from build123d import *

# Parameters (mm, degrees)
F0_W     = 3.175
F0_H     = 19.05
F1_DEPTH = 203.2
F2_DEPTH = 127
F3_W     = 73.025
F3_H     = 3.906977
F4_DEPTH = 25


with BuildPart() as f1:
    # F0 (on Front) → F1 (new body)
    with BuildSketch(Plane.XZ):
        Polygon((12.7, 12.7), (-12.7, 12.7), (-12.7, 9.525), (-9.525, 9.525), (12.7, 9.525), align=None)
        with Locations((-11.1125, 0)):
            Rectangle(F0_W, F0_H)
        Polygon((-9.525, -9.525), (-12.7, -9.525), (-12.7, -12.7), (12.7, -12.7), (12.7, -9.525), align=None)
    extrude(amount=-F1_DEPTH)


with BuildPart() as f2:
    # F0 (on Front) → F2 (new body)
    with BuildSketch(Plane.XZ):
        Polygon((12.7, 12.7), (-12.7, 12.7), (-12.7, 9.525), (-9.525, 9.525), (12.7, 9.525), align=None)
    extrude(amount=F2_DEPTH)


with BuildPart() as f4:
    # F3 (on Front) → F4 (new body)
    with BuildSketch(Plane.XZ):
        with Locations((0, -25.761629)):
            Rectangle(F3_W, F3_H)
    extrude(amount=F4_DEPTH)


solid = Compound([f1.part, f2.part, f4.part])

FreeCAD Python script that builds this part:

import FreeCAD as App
import Part
import Sketcher

V = App.Vector
Q = App.Units.Quantity


def add_polygon(sketch, points):
    """Adds a closed chain of lines whose ends are joined by coincident constraints."""
    first, n = sketch.GeometryCount, len(points)
    for a, b in zip(points, points[1:] + points[:1]):
        sketch.addGeometry(Part.LineSegment(App.Vector(*a, 0), App.Vector(*b, 0)), False)
    for i in range(n):
        sketch.addConstraint(Sketcher.Constraint("Coincident", first + i, 2, first + (i + 1) % n, 1))

doc = App.newDocument("Part")
body = doc.addObject("PartDesign::Body", "Body")

# Sketch on XZ plane
sketch1 = body.newObject("Sketcher::SketchObject", "Sketch")
sketch1.AttachmentSupport = (doc.getObject("XZ_Plane"), [""])
sketch1.MapMode = "FlatFace"
add_polygon(sketch1, [(12.7, 12.7), (-12.7, 12.7), (-12.7, -12.7), (12.7, -12.7), (12.7, -9.5), (-9.5, -9.5), (-9.5, 9.5), (12.7, 9.5)])  # lines 0-7
sketch1.addConstraint(Sketcher.Constraint("Horizontal", 0))
sketch1.addConstraint(Sketcher.Constraint("Vertical", 1))
sketch1.addConstraint(Sketcher.Constraint("Horizontal", 2))
sketch1.addConstraint(Sketcher.Constraint("Vertical", 3))
sketch1.addConstraint(Sketcher.Constraint("Horizontal", 4))
sketch1.addConstraint(Sketcher.Constraint("Vertical", 5))
sketch1.addConstraint(Sketcher.Constraint("Horizontal", 6))
sketch1.addConstraint(Sketcher.Constraint("Vertical", 7))
sketch1.addConstraint(Sketcher.Constraint("Symmetric", 0, 2, 2, 2, -1, 1))
sketch1.addConstraint(Sketcher.Constraint("Symmetric", 3, 2, 6, 2, -1))
sketch1.addConstraint(Sketcher.Constraint("Equal", 2, 1))
sketch1.addConstraint(Sketcher.Constraint("DistanceX", 0, 2, 0, 1, Q("1 in")))
sketch1.addConstraint(Sketcher.Constraint("DistanceY", 5, 1, 5, 2, Q("0.75 in")))
sketch1.addConstraint(Sketcher.Constraint("DistanceX", 4, 2, 4, 1, Q("0.875 in")))
pad1 = body.newObject("PartDesign::Pad", "Pad")
pad1.Profile = sketch1
pad1.Length = Q("8 in")
pad1.Reversed = True
body2 = doc.addObject("PartDesign::Body", "Body001")

# Sketch on XZ plane
sketch2 = body2.newObject("Sketcher::SketchObject", "Sketch001")
sketch2.AttachmentSupport = (doc.getObject("XZ_Plane001"), [""])
sketch2.MapMode = "FlatFace"
add_polygon(sketch2, [(12.7, 12.7), (-12.7, 12.7), (-12.7, 9.5), (12.7, 9.5)])  # lines 0-3
sketch2.addConstraint(Sketcher.Constraint("Horizontal", 0))
sketch2.addConstraint(Sketcher.Constraint("Vertical", 1))
sketch2.addConstraint(Sketcher.Constraint("Horizontal", 2))
sketch2.addConstraint(Sketcher.Constraint("Vertical", 3))
sketch2.addConstraint(Sketcher.Constraint("DistanceX", 0, 2, 0, 1, Q("1 in")))
sketch2.addConstraint(Sketcher.Constraint("DistanceX", 0, 2, -1, 1, Q("0.5 in")))
sketch2.addConstraint(Sketcher.Constraint("DistanceY", -1, 1, 0, 2, Q("0.5 in")))
sketch2.addConstraint(Sketcher.Constraint("DistanceY", 1, 2, 1, 1, Q("0.125 in")))
pad2 = body2.newObject("PartDesign::Pad", "Pad001")
pad2.Profile = sketch2
pad2.Length = Q("5 in")
body3 = doc.addObject("PartDesign::Body", "Body002")

# Sketch on XZ plane
sketch3 = body3.newObject("Sketcher::SketchObject", "Sketch002")
sketch3.AttachmentSupport = (doc.getObject("XZ_Plane002"), [""])
sketch3.MapMode = "FlatFace"
add_polygon(sketch3, [(-36.5, -23.8), (-36.5, -27.7), (36.5, -27.7), (36.5, -23.8)])  # lines 0-3
sketch3.addConstraint(Sketcher.Constraint("Vertical", 0))
sketch3.addConstraint(Sketcher.Constraint("Horizontal", 1))
sketch3.addConstraint(Sketcher.Constraint("Vertical", 2))
sketch3.addConstraint(Sketcher.Constraint("Horizontal", 3))
sketch3.addConstraint(Sketcher.Constraint("DistanceX", 1, 1, 1, 2, Q("2.875 in")))
sketch3.addConstraint(Sketcher.Constraint("DistanceX", 0, 2, -1, 1, Q("1.4375 in")))
sketch3.addConstraint(Sketcher.Constraint("DistanceY", 0, 2, 0, 1, Q("3.906977 mm")))
sketch3.addConstraint(Sketcher.Constraint("DistanceY", 2, 2, -1, 1, Q("23.808141 mm")))
pad3 = body3.newObject("PartDesign::Pad", "Pad002")
pad3.Profile = sketch3
pad3.Length = 25

doc.recompute()
